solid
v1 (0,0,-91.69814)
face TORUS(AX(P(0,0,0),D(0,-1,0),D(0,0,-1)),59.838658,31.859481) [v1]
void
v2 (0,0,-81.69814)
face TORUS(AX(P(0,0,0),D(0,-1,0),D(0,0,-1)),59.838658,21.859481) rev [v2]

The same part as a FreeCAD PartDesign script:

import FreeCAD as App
import Part
import Sketcher

V = App.Vector
Q = App.Units.Quantity

doc = App.newDocument("Part")
params = doc.addObject("Spreadsheet::Sheet", "Params")
for row, (alias, value) in enumerate([
    ("revolution_angle", "360 deg"),
], start=1):
    params.set(f"A{row}", alias)
    params.set(f"B{row}", "=" + value)
    params.setAlias(f"B{row}", alias)

body = doc.addObject("PartDesign::Body", "Body")

sketch1 = body.newObject("Sketcher::SketchObject", "Sketch")
sketch1.AttachmentSupport = (doc.getObject("YZ_Plane"), [""])
sketch1.MapMode = "FlatFace"
sketch1.addGeometry([
    Part.Circle(V(0, -59.838658, 0), V(0, 0, 1), 31.859481),
    Part.Circle(V(0, -59.838658, 0), V(0, 0, 1), 21.859481),
], False)
sketch1.addConstraint([
    Sketcher.Constraint("Coincident", 1, 3, 0, 3),
    Sketcher.Constraint("PointOnObject", 0, 3, -2),
    Sketcher.Constraint("Diameter", 0, Q("63.718963 mm")),
    Sketcher.Constraint("Diameter", 1, Q("43.718963 mm")),
    Sketcher.Constraint("DistanceY", 0, 3, -1, 1, Q("59.838658 mm")),
])
revolution = body.newObject("PartDesign::Revolution", "Revolution")
revolution.Profile = sketch1
revolution.ReferenceAxis = (sketch1, ["H_Axis"])
revolution.setExpression("Angle", "Params.revolution_angle")

doc.recompute()
